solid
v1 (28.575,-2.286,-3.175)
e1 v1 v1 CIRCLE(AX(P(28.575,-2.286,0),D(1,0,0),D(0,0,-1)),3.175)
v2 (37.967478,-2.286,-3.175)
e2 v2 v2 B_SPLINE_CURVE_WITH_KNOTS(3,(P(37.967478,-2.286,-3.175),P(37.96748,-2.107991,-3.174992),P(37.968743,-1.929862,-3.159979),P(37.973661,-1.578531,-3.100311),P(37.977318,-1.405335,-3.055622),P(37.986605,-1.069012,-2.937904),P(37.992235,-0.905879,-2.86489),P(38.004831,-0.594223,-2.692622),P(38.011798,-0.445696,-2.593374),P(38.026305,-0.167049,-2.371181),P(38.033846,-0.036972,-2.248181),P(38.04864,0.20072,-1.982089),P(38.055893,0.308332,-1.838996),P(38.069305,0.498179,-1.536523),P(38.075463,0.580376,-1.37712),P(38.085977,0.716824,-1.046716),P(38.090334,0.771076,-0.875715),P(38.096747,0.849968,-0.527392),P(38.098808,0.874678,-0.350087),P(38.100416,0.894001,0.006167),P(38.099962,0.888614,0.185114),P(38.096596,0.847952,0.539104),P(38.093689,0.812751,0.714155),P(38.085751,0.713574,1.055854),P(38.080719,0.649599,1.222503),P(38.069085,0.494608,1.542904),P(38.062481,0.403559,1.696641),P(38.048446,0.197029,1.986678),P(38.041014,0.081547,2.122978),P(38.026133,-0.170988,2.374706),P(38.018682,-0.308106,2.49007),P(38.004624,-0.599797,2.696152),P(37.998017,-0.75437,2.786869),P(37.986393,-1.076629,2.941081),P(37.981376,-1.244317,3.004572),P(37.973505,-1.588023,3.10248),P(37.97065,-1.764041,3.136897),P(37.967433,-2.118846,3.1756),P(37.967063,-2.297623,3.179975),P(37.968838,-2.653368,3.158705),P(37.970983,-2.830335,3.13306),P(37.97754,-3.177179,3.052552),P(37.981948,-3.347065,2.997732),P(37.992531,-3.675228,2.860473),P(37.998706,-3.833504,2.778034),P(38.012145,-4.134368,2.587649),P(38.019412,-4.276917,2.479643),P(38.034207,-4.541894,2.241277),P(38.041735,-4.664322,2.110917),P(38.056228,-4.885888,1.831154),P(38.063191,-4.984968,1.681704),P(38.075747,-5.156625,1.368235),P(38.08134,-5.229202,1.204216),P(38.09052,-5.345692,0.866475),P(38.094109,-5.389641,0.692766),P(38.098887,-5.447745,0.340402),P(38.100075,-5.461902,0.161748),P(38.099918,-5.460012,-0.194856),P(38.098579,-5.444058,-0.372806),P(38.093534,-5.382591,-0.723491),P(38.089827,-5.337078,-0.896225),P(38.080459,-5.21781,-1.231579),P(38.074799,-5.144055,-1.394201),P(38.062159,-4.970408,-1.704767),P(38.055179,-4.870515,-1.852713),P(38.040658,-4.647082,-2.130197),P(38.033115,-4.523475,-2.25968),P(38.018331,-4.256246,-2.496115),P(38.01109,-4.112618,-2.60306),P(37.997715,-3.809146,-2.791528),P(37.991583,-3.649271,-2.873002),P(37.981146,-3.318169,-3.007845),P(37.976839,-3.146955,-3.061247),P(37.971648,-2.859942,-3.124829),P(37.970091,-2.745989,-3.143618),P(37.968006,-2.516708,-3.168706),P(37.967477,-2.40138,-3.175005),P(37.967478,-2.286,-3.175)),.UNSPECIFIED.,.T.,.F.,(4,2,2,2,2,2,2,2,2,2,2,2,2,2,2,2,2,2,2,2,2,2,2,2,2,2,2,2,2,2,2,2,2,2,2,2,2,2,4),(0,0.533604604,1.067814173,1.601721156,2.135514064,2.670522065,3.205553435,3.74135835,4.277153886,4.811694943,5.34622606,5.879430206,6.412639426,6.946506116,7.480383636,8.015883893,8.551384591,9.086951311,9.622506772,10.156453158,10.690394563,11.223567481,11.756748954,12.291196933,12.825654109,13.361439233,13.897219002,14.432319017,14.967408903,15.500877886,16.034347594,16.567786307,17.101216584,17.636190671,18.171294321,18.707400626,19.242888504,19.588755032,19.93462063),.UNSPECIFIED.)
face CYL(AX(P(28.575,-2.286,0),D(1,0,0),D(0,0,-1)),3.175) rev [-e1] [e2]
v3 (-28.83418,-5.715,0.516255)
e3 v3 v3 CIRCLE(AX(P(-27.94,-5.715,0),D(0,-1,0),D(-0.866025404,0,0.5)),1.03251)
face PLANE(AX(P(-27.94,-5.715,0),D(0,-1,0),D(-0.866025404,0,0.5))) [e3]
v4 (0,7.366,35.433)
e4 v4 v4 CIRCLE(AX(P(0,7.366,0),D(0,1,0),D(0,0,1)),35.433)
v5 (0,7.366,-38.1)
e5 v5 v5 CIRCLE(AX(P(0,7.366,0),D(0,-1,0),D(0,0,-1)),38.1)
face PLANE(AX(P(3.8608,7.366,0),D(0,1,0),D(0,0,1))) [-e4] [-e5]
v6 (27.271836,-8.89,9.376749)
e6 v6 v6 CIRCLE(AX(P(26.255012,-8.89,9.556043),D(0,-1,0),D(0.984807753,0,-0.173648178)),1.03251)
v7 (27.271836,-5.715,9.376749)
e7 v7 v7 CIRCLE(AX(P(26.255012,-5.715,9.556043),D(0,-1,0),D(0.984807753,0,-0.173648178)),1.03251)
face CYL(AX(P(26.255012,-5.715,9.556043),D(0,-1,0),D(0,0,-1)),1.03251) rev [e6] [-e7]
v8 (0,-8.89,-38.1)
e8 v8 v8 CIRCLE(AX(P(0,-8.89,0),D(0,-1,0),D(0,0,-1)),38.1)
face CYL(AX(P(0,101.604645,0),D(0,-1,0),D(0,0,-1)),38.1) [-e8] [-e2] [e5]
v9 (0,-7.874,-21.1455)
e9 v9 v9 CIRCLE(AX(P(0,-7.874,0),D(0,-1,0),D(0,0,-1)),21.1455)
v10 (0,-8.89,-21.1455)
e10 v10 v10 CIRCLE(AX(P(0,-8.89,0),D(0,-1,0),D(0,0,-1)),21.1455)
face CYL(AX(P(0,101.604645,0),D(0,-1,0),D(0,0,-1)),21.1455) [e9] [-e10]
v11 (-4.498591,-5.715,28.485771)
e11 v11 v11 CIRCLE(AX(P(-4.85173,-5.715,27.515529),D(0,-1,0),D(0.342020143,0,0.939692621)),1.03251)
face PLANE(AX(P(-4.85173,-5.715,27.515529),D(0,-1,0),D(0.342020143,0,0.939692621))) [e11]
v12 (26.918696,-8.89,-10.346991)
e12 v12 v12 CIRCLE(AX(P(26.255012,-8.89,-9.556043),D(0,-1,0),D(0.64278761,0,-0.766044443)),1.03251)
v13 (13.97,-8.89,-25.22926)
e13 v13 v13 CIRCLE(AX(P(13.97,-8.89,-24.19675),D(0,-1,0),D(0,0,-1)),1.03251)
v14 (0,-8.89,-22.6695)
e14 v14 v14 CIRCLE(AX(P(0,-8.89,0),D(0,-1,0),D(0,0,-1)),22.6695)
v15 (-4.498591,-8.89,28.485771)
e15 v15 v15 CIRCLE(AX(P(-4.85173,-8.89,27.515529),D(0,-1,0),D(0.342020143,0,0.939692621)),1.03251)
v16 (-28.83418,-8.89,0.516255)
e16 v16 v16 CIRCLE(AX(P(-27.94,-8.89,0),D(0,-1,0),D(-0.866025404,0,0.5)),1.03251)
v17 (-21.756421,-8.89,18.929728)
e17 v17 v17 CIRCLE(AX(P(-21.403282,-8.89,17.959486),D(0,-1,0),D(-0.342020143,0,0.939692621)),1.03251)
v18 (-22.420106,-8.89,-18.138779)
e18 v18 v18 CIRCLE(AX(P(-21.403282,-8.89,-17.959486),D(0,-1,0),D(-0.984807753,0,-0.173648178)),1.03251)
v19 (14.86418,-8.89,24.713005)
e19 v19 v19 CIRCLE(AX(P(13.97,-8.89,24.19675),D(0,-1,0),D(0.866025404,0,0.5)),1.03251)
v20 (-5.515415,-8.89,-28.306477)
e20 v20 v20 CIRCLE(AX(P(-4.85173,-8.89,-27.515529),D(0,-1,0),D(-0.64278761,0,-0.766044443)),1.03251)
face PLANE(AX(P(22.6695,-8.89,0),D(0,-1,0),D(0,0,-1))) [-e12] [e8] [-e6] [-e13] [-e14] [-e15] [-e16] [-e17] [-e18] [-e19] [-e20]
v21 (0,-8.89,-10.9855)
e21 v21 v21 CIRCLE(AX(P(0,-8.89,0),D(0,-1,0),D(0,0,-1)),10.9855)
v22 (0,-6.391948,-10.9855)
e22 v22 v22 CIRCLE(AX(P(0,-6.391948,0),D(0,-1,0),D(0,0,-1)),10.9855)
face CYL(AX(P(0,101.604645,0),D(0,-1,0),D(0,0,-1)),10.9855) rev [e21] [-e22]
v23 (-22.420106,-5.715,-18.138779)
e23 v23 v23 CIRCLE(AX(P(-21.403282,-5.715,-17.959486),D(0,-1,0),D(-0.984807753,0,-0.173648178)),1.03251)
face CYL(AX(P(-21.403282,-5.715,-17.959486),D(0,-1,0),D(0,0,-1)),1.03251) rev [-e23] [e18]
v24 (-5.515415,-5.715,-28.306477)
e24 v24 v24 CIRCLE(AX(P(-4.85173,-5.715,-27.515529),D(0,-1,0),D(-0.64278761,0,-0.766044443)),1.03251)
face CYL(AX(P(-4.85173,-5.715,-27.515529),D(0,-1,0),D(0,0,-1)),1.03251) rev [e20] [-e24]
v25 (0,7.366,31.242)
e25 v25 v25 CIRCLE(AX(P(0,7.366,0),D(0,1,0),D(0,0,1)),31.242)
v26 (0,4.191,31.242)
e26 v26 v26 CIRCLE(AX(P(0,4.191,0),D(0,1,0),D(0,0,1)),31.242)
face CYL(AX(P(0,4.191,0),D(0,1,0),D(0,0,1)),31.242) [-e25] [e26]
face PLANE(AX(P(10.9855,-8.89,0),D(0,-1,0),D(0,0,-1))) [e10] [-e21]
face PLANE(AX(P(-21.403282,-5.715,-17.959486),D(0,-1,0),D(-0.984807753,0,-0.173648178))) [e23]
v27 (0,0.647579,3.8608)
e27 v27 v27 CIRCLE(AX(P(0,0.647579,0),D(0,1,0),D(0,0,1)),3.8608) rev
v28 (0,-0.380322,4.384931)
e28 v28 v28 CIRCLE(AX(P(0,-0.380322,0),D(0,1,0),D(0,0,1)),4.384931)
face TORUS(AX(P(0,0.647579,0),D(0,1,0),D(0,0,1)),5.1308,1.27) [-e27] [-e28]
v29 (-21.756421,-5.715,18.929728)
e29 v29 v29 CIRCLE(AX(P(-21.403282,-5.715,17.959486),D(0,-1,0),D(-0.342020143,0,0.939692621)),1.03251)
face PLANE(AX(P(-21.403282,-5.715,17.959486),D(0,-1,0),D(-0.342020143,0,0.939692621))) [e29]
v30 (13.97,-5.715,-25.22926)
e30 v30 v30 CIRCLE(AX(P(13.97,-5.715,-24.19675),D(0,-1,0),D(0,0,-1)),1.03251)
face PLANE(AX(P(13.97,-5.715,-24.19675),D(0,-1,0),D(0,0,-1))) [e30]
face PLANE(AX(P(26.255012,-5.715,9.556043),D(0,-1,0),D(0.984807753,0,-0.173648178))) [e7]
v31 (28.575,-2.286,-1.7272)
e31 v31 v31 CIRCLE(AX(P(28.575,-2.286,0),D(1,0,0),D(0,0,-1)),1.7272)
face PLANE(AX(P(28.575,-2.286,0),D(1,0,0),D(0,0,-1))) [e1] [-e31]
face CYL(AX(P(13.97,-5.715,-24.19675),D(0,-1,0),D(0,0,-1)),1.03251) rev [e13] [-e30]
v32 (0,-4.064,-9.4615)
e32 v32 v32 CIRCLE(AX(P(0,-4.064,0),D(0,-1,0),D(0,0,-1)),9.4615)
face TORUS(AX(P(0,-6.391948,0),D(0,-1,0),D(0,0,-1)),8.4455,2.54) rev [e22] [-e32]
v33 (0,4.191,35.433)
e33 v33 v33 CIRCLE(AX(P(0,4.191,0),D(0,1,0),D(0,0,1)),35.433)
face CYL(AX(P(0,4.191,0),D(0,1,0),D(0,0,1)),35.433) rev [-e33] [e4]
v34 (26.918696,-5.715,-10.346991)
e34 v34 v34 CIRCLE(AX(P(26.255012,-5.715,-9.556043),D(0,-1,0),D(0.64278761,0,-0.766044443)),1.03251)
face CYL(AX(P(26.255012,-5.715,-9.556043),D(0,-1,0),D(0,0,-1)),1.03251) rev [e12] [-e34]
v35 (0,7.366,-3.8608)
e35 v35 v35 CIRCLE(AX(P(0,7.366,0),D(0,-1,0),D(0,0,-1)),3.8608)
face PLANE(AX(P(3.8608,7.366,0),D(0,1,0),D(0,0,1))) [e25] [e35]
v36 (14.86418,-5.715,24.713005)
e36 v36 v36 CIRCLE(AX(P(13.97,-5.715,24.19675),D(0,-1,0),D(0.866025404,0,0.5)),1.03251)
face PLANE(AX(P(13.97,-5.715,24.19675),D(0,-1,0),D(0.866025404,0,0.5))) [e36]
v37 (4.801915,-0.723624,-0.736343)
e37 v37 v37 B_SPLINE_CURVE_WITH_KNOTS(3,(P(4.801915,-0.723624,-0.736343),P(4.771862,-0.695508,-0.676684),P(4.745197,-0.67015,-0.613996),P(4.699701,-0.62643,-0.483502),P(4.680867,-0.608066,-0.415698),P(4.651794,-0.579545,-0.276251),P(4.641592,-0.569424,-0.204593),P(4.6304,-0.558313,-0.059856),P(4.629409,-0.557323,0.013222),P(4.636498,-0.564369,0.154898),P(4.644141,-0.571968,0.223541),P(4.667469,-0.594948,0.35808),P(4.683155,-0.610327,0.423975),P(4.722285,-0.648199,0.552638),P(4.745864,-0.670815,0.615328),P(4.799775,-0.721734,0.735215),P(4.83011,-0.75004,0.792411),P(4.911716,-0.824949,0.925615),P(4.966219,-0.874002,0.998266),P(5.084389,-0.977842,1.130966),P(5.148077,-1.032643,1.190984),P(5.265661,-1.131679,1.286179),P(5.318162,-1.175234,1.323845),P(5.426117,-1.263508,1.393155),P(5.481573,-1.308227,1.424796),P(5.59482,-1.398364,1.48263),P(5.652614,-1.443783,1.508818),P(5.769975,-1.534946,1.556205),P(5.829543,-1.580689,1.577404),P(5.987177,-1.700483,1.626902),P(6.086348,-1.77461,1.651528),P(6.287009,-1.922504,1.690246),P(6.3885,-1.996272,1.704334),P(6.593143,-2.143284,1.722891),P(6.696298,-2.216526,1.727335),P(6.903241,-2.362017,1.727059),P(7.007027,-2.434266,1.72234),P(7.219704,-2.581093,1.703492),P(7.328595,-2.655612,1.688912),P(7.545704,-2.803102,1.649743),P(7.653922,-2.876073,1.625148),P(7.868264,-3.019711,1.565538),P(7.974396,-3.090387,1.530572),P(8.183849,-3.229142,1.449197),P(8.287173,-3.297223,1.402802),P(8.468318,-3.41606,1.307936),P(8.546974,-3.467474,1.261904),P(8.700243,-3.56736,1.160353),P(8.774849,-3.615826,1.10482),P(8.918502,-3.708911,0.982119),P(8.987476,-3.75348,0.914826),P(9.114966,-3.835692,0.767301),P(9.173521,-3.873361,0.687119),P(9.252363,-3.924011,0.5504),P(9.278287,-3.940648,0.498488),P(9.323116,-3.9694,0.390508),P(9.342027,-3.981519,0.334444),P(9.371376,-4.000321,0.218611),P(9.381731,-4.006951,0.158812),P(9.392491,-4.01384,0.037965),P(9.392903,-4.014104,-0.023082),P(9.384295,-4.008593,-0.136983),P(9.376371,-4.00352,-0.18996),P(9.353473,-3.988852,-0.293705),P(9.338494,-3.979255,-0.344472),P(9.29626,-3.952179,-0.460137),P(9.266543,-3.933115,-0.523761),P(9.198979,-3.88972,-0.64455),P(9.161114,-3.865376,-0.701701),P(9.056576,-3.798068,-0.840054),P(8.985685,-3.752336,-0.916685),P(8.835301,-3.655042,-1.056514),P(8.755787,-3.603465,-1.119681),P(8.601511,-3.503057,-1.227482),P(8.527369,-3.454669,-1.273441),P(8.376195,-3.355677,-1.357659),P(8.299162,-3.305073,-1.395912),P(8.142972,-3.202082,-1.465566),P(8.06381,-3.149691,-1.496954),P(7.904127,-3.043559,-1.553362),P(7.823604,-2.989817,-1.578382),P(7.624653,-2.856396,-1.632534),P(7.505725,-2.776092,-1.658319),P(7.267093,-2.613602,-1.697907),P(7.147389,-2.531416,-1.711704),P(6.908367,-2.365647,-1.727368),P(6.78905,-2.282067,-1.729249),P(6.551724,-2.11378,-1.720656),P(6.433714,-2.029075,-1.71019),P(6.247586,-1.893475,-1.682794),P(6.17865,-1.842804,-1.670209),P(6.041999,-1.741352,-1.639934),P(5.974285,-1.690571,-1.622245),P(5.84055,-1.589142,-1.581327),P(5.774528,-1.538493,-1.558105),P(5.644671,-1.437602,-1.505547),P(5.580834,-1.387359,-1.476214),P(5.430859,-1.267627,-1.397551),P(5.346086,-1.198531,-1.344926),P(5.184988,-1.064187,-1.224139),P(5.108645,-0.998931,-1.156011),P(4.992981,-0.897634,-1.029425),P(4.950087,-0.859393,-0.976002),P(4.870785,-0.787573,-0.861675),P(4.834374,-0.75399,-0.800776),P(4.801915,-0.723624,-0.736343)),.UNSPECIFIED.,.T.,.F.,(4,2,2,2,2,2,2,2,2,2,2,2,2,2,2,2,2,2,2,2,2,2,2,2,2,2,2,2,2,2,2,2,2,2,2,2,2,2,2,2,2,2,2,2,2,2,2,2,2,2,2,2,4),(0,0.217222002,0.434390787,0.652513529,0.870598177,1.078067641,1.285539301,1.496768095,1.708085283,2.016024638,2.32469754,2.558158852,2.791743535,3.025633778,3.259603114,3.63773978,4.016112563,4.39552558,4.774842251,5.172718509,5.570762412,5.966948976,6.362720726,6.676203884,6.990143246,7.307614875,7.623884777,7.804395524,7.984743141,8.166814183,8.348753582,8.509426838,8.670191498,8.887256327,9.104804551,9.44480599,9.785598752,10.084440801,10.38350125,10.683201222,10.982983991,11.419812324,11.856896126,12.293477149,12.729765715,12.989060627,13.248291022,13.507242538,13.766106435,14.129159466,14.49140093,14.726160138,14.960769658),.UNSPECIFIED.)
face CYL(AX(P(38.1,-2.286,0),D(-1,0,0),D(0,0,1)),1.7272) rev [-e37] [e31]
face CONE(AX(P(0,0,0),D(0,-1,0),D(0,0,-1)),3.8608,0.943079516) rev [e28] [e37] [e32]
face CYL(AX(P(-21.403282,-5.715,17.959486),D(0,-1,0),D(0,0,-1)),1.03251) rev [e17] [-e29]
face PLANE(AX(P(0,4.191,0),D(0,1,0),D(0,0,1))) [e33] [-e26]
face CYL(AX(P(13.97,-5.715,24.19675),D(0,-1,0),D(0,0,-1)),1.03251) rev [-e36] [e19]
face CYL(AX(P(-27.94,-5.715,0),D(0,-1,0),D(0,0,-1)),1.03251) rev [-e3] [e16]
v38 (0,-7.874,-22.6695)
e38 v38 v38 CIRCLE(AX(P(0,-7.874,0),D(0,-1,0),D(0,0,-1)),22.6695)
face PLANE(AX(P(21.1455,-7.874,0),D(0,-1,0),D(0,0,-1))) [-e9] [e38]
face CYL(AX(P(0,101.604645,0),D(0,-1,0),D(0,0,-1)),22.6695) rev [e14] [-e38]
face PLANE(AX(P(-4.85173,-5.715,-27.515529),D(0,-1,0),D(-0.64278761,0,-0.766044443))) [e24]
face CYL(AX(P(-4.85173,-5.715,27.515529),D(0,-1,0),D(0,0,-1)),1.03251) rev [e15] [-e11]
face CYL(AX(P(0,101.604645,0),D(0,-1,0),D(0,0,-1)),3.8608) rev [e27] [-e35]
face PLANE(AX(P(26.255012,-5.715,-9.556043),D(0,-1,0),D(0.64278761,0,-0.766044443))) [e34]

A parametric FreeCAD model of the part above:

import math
import FreeCAD as App
import Part
import Sketcher

V = App.Vector
Q = App.Units.Quantity


def edges_at(feature, points):
    """Names of the edges that pass closest to the given points."""
    edges = feature.Shape.Edges
    near = lambda p: min(range(len(edges)), key=lambda i: edges[i].distToShape(Part.Vertex(*p))[0])
    return sorted({f"Edge{near(p) + 1}" for p in points})

doc = App.newDocument("Part")
params = doc.addObject("Spreadsheet::Sheet", "Params")
for row, (alias, value) in enumerate([
    ("sketch1_radius", "0.1 in"),
    ("sketch1_width", "0.4 in"),
    ("sketch1_width2", "0.06 in"),
    ("sketch1_height", "0.29 in"),
    ("sketch1_height2", "0.04 in"),
    ("revolution_angle", "360 deg"),
    ("sketch2_diameter", "0.136 in"),
    ("sketch3_diameter", "2.79 in"),
    ("sketch3_diameter2", "2.46 in"),
    ("pocket2_length", "0.125 in"),
    ("pocket3_length", "0.125 in"),
    ("sketch5_diameter", "0.25 in"),
    ("pocket4_length", "0.375 in"),
    ("fillet_radius", "0.05 in"),
], start=1):
    params.set(f"A{row}", alias)
    params.set(f"B{row}", "=" + value)
    params.setAlias(f"B{row}", alias)

body = doc.addObject("PartDesign::Body", "Body")

# Sketch on XY plane
sketch1 = body.newObject("Sketcher::SketchObject", "Sketch")
sketch1.AttachmentSupport = (doc.getObject("XY_Plane"), [""])
sketch1.MapMode = "FlatFace"
sketch1.addGeometry(Part.LineSegment(V(38.1, 7.4, 0), V(3.9, 7.4, 0)), False)
sketch1.addGeometry(Part.LineSegment(V(3.9, 7.4, 0), V(3.9, 0, 0)), False)
sketch1.addGeometry(Part.LineSegment(V(3.9, 0, 0), V(9.5, -4.1, 0)), False)
sketch1.addGeometry(Part.ArcOfCircle(Part.Circle(V(8.4, -6.4, 0), V(0, 0, 1), 2.5), math.radians(0), math.radians(66)), False)
sketch1.addGeometry(Part.LineSegment(V(11, -6.4, 0), V(11, -8.9, 0)), False)
sketch1.addGeometry(Part.LineSegment(V(11, -8.9, 0), V(21.1, -8.9, 0)), False)
sketch1.addGeometry(Part.LineSegment(V(21.1, -8.9, 0), V(21.1, -7.9, 0)), False)
sketch1.addGeometry(Part.LineSegment(V(21.1, -7.9, 0), V(22.7, -7.9, 0)), False)
sketch1.addGeometry(Part.LineSegment(V(22.7, -7.9, 0), V(22.7, -8.9, 0)), False)
sketch1.addGeometry(Part.LineSegment(V(22.7, -8.9, 0), V(38.1, -8.9, 0)), False)
sketch1.addGeometry(Part.LineSegment(V(38.1, -8.9, 0), V(38.1, 7.4, 0)), False)
sketch1.addConstraint(Sketcher.Constraint("Coincident", 0, 2, 1, 1))
sketch1.addConstraint(Sketcher.Constraint("Coincident", 1, 2, 2, 1))
sketch1.addConstraint(Sketcher.Constraint("Coincident", 2, 2, 3, 2))
sketch1.addConstraint(Sketcher.Constraint("Tangent", 3, 1, 4, 1))
sketch1.addConstraint(Sketcher.Constraint("Coincident", 4, 2, 5, 1))
sketch1.addConstraint(Sketcher.Constraint("Coincident", 5, 2, 6, 1))
sketch1.addConstraint(Sketcher.Constraint("Coincident", 6, 2, 7, 1))
sketch1.addConstraint(Sketcher.Constraint("Coincident", 7, 2, 8, 1))
sketch1.addConstraint(Sketcher.Constraint("Coincident", 8, 2, 9, 1))
sketch1.addConstraint(Sketcher.Constraint("Coincident", 9, 2, 10, 1))
sketch1.addConstraint(Sketcher.Constraint("Coincident", 10, 2, 0, 1))
sketch1.addConstraint(Sketcher.Constraint("Horizontal", 0))
sketch1.addConstraint(Sketcher.Constraint("Vertical", 1))
sketch1.addConstraint(Sketcher.Constraint("Vertical", 4))
sketch1.addConstraint(Sketcher.Constraint("Horizontal", 5))
sketch1.addConstraint(Sketcher.Constraint("Vertical", 6))
sketch1.addConstraint(Sketcher.Constraint("Horizontal", 7))
sketch1.addConstraint(Sketcher.Constraint("Vertical", 8))
sketch1.addConstraint(Sketcher.Constraint("Horizontal", 9))
sketch1.addConstraint(Sketcher.Constraint("Vertical", 10))
sketch1.addConstraint(Sketcher.Constraint("PointOnObject", 1, 2, -1))
sketch1.addConstraint(Sketcher.Constraint("Horizontal", 5, 2, 8, 2))
sketch1.addConstraint(Sketcher.Constraint("Radius", 3, Q("0.1 in")))
sketch1.addConstraint(Sketcher.Constraint("DistanceX", 5, 1, 5, 2, Q("0.4 in")))
sketch1.addConstraint(Sketcher.Constraint("DistanceX", 7, 1, 7, 2, Q("0.06 in")))
sketch1.addConstraint(Sketcher.Constraint("DistanceY", 1, 2, 1, 1, Q("0.29 in")))
sketch1.addConstraint(Sketcher.Constraint("DistanceY", 6, 1, 6, 2, Q("0.04 in")))
sketch1.addConstraint(Sketcher.Constraint("DistanceY", 10, 1, 10, 2, Q("0.64 in")))
sketch1.addConstraint(Sketcher.Constraint("DistanceX", -1, 1, 9, 2, Q("1.5 in")))
sketch1.addConstraint(Sketcher.Constraint("DistanceX", 0, 2, 0, 1, Q("1.348 in")))
sketch1.addConstraint(Sketcher.Constraint("DistanceY", 2, 2, -1, 1, Q("0.16 in")))
sketch1.addConstraint(Sketcher.Constraint("DistanceX", 3, 3, 2, 2, Q("0.04 in")))
sketch1.addConstraint(Sketcher.Constraint("DistanceX", 9, 1, 9, 2, Q("0.6075 in")))
sketch1.setExpression("Constraints[22]", "Params.sketch1_radius")
sketch1.setExpression("Constraints[23]", "Params.sketch1_width")
sketch1.setExpression("Constraints[24]", "Params.sketch1_width2")
sketch1.setExpression("Constraints[25]", "Params.sketch1_height")
sketch1.setExpression("Constraints[26]", "Params.sketch1_height2")
revolution = body.newObject("PartDesign::Revolution", "Revolution")
revolution.Profile = sketch1
revolution.ReferenceAxis = (sketch1, ["V_Axis"])
revolution.setExpression("Angle", "Params.revolution_angle")

# Sketch on YZ plane
sketch2 = body.newObject("Sketcher::SketchObject", "Sketch001")
sketch2.AttachmentSupport = (doc.getObject("YZ_Plane"), [""])
sketch2.MapMode = "FlatFace"
sketch2.addGeometry(Part.Circle(V(-2.3, 0, 0), V(0, 0, 1), 1.7), False)
sketch2.addConstraint(Sketcher.Constraint("PointOnObject", 0, 3, -1))
sketch2.addConstraint(Sketcher.Constraint("Diameter", 0, Q("0.136 in")))
sketch2.addConstraint(Sketcher.Constraint("DistanceX", 0, 3, -1, 1, Q("0.09 in")))
sketch2.setExpression("Constraints[1]", "Params.sketch2_diameter")
pocket1 = body.newObject("PartDesign::Pocket", "Pocket")
pocket1.Profile = sketch2
pocket1.Type = "ThroughAll"
pocket1.Reversed = True

# Sketch on XZ plane
sketch3 = body.newObject("Sketcher::SketchObject", "Sketch002")
sketch3.AttachmentSupport = (doc.getObject("XZ_Plane"), [""])
sketch3.MapMode = "FlatFace"
sketch3.AttachmentOffset = App.Placement(V(0, 0, -0.29 * 25.4), App.Rotation())
sketch3.addGeometry(Part.Circle(V(0, 0, 0), V(0, 0, 1), 35), False)
sketch3.addGeometry(Part.Circle(V(0, 0, 0), V(0, 0, 1), 31), False)
sketch3.addConstraint(Sketcher.Constraint("Coincident", 0, 3, -1, 1))
sketch3.addConstraint(Sketcher.Constraint("Coincident", 1, 3, -1, 1))
sketch3.addConstraint(Sketcher.Constraint("Diameter", 0, Q("2.79 in")))
sketch3.addConstraint(Sketcher.Constraint("Diameter", 1, Q("2.46 in")))
sketch3.setExpression("Constraints[2]", "Params.sketch3_diameter")
sketch3.setExpression("Constraints[3]", "Params.sketch3_diameter2")
pocket2 = body.newObject("PartDesign::Pocket", "Pocket001")
pocket2.Profile = sketch3
pocket2.setExpression("Length", "Params.pocket2_length")
pocket2.Reversed = True

# Sketch on XZ plane
sketch4 = body.newObject("Sketcher::SketchObject", "Sketch003")
sketch4.AttachmentSupport = (doc.getObject("XZ_Plane"), [""])
sketch4.MapMode = "FlatFace"
sketch4.AttachmentOffset = App.Placement(V(0, 0, 0.35 * 25.4), App.Rotation())
sketch4.addGeometry(Part.Circle(V(14, -24.2, 0), V(0, 0, 1), 1), False)
sketch4.addConstraint(Sketcher.Constraint("Diameter", 0, Q("0.0813 in")))
sketch4.addConstraint(Sketcher.Constraint("DistanceX", -1, 1, 0, 3, Q("0.55 in")))
sketch4.addConstraint(Sketcher.Constraint("DistanceY", 0, 3, -1, 1, Q("24.19675 mm")))
pocket3 = body.newObject("PartDesign::Pocket", "Pocket002")
pocket3.Profile = sketch4
pocket3.setExpression("Length", "Params.pocket3_length")
doc.recompute()

polarpattern = body.newObject("PartDesign::PolarPattern", "PolarPattern")
polarpattern.Originals = [pocket3]
polarpattern.Axis = (doc.getObject("Y_Axis"), [""])
polarpattern.Angle = 360
polarpattern.Occurrences = 9
body.Tip = polarpattern

# Sketch on YZ plane
sketch5 = body.newObject("Sketcher::SketchObject", "Sketch004")
sketch5.AttachmentSupport = (doc.getObject("YZ_Plane"), [""])
sketch5.MapMode = "FlatFace"
sketch5.AttachmentOffset = App.Placement(V(0, 0, 1.5 * 25.4), App.Rotation())
sketch5.addGeometry(Part.Circle(V(-2.3, 0, 0), V(0, 0, 1), 3.2), False)
sketch5.addConstraint(Sketcher.Constraint("PointOnObject", 0, 3, -1))
sketch5.addConstraint(Sketcher.Constraint("Diameter", 0, Q("0.25 in")))
sketch5.addConstraint(Sketcher.Constraint("DistanceX", 0, 3, -1, 1, Q("0.09 in")))
sketch5.setExpression("Constraints[1]", "Params.sketch5_diameter")
pocket4 = body.newObject("PartDesign::Pocket", "Pocket003")
pocket4.Profile = sketch5
pocket4.setExpression("Length", "Params.pocket4_length")
doc.recompute()

fillet = body.newObject("PartDesign::Fillet", "Fillet")
fillet.Base = (pocket4, edges_at(pocket4, [(0, 0, 3.861)]))
fillet.setExpression("Radius", "Params.fillet_radius")

doc.recompute()
